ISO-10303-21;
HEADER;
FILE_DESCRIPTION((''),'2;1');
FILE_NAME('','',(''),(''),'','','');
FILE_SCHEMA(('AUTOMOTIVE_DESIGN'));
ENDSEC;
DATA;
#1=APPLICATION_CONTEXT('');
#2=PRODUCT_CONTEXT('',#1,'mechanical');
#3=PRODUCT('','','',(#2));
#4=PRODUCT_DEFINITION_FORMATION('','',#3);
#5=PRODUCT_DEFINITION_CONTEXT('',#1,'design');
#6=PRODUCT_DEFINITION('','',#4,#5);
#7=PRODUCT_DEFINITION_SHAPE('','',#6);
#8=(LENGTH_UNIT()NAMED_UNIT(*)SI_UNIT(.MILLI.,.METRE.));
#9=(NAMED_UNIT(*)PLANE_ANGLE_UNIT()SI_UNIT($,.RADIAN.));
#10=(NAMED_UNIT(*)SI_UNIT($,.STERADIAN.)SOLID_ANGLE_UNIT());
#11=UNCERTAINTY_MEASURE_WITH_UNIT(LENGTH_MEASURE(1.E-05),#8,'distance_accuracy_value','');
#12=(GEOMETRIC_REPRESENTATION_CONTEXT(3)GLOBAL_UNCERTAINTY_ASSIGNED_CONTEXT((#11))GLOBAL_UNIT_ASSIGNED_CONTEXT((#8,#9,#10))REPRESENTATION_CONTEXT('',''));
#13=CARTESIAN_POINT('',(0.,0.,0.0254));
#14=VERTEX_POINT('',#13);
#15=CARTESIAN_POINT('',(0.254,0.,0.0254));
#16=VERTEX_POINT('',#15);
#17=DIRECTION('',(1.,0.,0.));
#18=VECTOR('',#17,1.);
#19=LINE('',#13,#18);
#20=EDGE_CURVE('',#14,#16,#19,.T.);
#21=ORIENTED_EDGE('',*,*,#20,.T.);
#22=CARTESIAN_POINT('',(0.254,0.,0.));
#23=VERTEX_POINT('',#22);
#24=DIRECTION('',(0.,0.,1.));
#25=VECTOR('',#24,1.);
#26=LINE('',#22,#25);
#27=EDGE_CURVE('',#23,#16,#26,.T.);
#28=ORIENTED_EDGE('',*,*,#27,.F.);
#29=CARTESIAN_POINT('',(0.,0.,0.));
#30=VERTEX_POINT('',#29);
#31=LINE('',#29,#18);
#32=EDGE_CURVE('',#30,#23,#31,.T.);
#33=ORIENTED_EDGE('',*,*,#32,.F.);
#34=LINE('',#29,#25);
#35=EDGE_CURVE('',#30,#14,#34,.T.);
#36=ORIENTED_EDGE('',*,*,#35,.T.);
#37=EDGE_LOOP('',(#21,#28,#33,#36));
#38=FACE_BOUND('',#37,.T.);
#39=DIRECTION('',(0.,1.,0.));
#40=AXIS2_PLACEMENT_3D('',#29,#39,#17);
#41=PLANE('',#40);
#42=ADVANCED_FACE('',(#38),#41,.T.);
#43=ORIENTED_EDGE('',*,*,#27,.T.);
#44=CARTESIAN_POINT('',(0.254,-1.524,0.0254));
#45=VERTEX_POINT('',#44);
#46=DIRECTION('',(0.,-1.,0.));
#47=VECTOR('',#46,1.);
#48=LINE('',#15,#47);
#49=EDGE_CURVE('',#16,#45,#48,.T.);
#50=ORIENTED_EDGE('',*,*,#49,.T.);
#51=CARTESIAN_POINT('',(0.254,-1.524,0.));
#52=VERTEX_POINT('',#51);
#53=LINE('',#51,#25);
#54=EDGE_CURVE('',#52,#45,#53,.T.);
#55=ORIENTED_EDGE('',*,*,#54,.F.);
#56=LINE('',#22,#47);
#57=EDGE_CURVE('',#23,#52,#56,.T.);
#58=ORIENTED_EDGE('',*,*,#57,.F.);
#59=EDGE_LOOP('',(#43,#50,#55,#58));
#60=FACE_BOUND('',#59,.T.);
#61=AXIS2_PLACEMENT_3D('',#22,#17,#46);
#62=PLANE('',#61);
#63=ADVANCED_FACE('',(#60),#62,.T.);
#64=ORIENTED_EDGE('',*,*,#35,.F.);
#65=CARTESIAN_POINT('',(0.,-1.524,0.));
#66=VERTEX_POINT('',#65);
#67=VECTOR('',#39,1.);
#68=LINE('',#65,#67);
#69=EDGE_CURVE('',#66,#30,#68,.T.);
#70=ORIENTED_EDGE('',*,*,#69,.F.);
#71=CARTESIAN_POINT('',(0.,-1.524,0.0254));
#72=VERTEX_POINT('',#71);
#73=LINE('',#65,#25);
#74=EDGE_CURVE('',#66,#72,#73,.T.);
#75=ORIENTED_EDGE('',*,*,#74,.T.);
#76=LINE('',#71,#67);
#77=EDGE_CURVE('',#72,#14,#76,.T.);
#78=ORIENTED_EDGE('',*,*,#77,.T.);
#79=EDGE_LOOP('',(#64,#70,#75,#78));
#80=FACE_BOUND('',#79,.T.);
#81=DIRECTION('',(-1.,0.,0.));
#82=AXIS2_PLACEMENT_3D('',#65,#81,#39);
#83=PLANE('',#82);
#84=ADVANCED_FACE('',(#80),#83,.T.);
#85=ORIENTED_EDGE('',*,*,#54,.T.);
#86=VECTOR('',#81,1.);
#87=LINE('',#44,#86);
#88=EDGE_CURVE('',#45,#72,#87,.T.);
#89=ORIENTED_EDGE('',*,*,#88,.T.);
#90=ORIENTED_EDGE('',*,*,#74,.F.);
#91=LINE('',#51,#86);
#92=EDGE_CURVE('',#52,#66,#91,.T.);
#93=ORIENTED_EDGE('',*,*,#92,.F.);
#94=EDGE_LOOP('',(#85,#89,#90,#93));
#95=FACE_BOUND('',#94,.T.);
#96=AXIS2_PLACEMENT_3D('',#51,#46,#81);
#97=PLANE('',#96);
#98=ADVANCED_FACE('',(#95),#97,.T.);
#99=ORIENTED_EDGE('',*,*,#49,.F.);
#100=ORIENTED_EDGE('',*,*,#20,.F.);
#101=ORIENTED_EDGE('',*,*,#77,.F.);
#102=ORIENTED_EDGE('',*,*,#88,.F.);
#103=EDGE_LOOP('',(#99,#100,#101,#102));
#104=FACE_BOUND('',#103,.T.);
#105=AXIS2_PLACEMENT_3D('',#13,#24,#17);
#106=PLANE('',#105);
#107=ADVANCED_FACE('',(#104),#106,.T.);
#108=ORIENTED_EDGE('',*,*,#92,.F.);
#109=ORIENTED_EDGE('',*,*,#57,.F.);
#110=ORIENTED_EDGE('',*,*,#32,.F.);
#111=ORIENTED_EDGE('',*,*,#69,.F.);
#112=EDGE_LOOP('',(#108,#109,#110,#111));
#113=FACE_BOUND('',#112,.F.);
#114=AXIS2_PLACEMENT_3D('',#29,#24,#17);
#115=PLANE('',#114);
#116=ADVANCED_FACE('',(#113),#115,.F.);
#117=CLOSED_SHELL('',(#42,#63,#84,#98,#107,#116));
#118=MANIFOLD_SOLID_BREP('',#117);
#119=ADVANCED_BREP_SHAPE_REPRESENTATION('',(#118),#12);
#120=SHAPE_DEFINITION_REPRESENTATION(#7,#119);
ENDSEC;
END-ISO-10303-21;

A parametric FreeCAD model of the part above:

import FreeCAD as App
import Part
import Sketcher
from FreeCAD import Vector
Q = App.Units.Quantity


def add_polygon(sketch, points):
    """Adds a closed chain of lines whose ends are joined by coincident constraints."""
    first, n = sketch.GeometryCount, len(points)
    for a, b in zip(points, points[1:] + points[:1]):
        sketch.addGeometry(Part.LineSegment(App.Vector(*a, 0), App.Vector(*b, 0)), False)
    for i in range(n):
        sketch.addConstraint(Sketcher.Constraint("Coincident", first + i, 2, first + (i + 1) % n, 1))

doc = App.newDocument("Part")
body = doc.addObject("PartDesign::Body", "Body")

sketch1 = body.newObject("Sketcher::SketchObject", "Sketch")
sketch1.AttachmentSupport = (doc.getObject("XY_Plane"), [""])
sketch1.MapMode = "FlatFace"
add_polygon(sketch1, [(0.25, 0), (0, 0), (0, -1.52), (0.25, -1.52)])
sketch1.addConstraint([
    Sketcher.Constraint("Horizontal", 0),
    Sketcher.Constraint("Vertical", 1),
    Sketcher.Constraint("Horizontal", 2),
    Sketcher.Constraint("Vertical", 3),
    Sketcher.Constraint("Coincident", 0, 2, -1, 1),
    Sketcher.Constraint("DistanceX", 0, 2, 0, 1, Q("0.01 in")),
    Sketcher.Constraint("DistanceY", 1, 2, 1, 1, Q("0.06 in")),
])
pad1 = body.newObject("PartDesign::Pad", "Pad")
pad1.Profile = sketch1
pad1.Length = Q("0.001 in")

doc.recompute()
